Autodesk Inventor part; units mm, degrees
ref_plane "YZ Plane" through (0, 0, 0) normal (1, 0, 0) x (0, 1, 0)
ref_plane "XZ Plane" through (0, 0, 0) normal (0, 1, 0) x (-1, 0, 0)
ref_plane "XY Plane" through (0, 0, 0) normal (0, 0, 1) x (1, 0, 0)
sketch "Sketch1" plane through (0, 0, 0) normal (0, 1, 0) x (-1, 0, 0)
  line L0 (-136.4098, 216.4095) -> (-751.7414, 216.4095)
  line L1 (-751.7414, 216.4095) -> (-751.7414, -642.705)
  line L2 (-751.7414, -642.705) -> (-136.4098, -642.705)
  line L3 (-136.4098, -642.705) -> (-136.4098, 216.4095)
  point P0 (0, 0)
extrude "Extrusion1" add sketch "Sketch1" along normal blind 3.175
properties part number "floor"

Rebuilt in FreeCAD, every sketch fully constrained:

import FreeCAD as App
import Part
import Sketcher

V = App.Vector
Q = App.Units.Quantity

doc = App.newDocument("Part")
params = doc.addObject("Spreadsheet::Sheet", "Params")
for row, (alias, value) in enumerate([
    ("pad1_length", "0.125 in"),
], start=1):
    params.set(f"A{row}", alias)
    params.set(f"B{row}", "=" + value)
    params.setAlias(f"B{row}", alias)

body = doc.addObject("PartDesign::Body", "Body")

# Sketch on XZ plane
sketch1 = doc.addObject("Sketcher::SketchObject", "Sketch")
body.addObject(sketch1)
sketch1.AttachmentSupport = (doc.XZ_Plane, [""])
sketch1.MapMode = "FlatFace"
sketch1.addGeometry([
    Part.LineSegment(V(136.4098, -642.705, 0), V(136.4098, 216.4095, 0)),
    Part.LineSegment(V(136.4098, 216.4095, 0), V(751.7414, 216.4095, 0)),
    Part.LineSegment(V(751.7414, 216.4095, 0), V(751.7414, -642.705, 0)),
    Part.LineSegment(V(751.7414, -642.705, 0), V(136.4098, -642.705, 0)),
], False)
sketch1.addConstraint([
    Sketcher.Constraint("Coincident", 0, 2, 1, 1),
    Sketcher.Constraint("Coincident", 1, 2, 2, 1),
    Sketcher.Constraint("Coincident", 2, 2, 3, 1),
    Sketcher.Constraint("Coincident", 3, 2, 0, 1),
    Sketcher.Constraint("Vertical", 0),
    Sketcher.Constraint("Horizontal", 1),
    Sketcher.Constraint("Vertical", 2),
    Sketcher.Constraint("Horizontal", 3),
    Sketcher.Constraint("DistanceY", 0, 1, 0, 2, Q("33.8234 in")),
    Sketcher.Constraint("DistanceX", 1, 1, 1, 2, 615.3316),
    Sketcher.Constraint("DistanceX", -1, 1, 0, 2, 136.4098),
    Sketcher.Constraint("DistanceY", -1, 1, 0, 2, 216.4095),
])
pad1 = doc.addObject("PartDesign::Pad", "Pad")
body.addObject(pad1)
pad1.Profile = sketch1
pad1.setExpression("Length", "Params.pad1_length")
pad1.Reversed = True

doc.recompute()
